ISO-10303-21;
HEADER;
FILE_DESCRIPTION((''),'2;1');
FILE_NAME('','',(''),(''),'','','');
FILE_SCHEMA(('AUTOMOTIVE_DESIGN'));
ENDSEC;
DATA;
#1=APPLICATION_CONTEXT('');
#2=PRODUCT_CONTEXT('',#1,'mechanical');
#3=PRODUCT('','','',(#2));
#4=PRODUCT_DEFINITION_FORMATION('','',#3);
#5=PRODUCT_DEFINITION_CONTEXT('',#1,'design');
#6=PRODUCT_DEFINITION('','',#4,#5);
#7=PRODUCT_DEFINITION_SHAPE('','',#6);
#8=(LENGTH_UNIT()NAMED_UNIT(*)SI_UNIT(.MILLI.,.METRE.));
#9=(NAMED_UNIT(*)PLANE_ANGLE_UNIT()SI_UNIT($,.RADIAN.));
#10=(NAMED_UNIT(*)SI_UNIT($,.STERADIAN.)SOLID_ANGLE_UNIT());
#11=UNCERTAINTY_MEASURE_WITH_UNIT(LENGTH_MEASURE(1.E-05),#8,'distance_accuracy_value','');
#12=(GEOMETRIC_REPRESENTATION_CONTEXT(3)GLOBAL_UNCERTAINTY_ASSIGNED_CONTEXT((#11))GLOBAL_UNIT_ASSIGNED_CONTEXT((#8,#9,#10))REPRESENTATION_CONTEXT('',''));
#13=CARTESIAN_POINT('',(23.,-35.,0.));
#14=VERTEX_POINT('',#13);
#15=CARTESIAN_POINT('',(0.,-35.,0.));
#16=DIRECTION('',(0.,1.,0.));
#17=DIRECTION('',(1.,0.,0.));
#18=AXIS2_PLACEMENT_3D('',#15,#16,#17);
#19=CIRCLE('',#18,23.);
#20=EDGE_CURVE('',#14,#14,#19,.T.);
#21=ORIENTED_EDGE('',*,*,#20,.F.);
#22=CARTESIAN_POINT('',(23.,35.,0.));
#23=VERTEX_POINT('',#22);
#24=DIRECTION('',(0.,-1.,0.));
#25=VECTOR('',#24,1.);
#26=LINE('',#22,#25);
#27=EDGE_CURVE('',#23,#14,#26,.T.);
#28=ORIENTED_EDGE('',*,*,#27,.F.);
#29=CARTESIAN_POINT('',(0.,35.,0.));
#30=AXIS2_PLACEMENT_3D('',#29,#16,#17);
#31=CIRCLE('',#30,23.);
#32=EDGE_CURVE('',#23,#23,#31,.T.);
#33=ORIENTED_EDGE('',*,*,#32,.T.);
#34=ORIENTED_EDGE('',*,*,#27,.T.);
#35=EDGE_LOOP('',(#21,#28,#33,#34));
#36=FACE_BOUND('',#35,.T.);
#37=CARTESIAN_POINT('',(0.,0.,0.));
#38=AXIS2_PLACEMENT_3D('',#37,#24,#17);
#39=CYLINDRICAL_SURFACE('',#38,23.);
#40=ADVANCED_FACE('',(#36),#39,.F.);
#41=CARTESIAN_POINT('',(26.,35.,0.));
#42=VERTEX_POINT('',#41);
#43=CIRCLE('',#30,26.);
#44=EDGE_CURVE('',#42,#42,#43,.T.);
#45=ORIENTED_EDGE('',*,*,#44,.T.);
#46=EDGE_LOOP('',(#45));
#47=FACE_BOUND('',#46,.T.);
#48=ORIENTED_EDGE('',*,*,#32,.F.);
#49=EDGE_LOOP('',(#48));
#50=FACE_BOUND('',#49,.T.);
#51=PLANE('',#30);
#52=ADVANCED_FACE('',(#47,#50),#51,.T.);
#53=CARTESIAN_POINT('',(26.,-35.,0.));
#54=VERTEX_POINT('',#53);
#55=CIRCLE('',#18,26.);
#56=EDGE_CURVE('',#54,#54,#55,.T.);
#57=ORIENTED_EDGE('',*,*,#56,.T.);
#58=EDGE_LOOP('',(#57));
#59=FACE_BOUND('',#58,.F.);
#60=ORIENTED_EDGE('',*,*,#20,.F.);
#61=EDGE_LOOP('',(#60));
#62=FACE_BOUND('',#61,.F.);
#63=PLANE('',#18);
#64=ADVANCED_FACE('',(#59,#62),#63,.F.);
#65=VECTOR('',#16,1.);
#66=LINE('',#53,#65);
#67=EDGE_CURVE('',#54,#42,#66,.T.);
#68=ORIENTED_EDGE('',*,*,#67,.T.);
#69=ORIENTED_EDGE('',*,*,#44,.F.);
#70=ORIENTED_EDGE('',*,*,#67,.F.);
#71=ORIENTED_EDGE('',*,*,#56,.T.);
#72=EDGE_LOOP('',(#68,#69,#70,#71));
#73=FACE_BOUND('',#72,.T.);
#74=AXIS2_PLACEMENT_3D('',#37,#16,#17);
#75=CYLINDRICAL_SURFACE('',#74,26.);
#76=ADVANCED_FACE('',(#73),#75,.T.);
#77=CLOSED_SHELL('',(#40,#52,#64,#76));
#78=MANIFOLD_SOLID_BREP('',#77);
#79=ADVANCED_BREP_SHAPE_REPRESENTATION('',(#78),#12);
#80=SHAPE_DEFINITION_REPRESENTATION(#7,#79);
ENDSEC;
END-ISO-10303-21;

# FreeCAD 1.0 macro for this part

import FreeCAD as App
import Part
import Sketcher
Q = App.Units.Quantity

doc = App.newDocument("Part")
body = doc.addObject("PartDesign::Body", "Body")

# Sketch on XZ plane
sketch1 = body.newObject("Sketcher::SketchObject", "Sketch")
sketch1.AttachmentSupport = (doc.getObject("XZ_Plane"), [""])
sketch1.MapMode = "FlatFace"
sketch1.addGeometry(Part.Circle(App.Vector(0, 0, 0), App.Vector(0, 0, 1), 26), False)
sketch1.addGeometry(Part.Circle(App.Vector(0, 0, 0), App.Vector(0, 0, 1), 23), False)
sketch1.addConstraint(Sketcher.Constraint("Coincident", 0, 3, -1, 1))
sketch1.addConstraint(Sketcher.Constraint("Coincident", 1, 3, -1, 1))
sketch1.addConstraint(Sketcher.Constraint("Diameter", 0, Q("52 mm")))
sketch1.addConstraint(Sketcher.Constraint("Diameter", 1, Q("46 mm")))
pad1 = body.newObject("PartDesign::Pad", "Pad")
pad1.Profile = sketch1
pad1.Length = 70
pad1.Midplane = True

doc.recompute()
